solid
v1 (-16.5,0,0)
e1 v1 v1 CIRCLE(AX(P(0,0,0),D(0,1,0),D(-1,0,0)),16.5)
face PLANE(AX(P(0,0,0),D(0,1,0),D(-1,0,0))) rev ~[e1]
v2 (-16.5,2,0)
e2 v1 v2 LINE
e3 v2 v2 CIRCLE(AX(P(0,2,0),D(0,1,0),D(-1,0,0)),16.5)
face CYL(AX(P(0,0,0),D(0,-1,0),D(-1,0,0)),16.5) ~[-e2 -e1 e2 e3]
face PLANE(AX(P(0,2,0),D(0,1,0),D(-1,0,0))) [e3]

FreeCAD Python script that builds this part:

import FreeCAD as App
import Part
import Sketcher

V = App.Vector

doc = App.newDocument("Part")
body = doc.addObject("PartDesign::Body", "Body")

sketch1 = body.newObject("Sketcher::SketchObject", "Sketch")
sketch1.AttachmentSupport = (doc.getObject("XZ_Plane"), [""])
sketch1.MapMode = "FlatFace"
sketch1.addGeometry(Part.Circle(V(0, 0, 0), V(0, 0, 1), 16), False)
sketch1.addConstraint(Sketcher.Constraint("Coincident", 0, 3, -1, 1))
sketch1.addConstraint(Sketcher.Constraint("Diameter", 0, 33.0))
pad1 = body.newObject("PartDesign::Pad", "Pad")
pad1.Profile = sketch1
pad1.Length = 2
pad1.Reversed = True

doc.recompute()
